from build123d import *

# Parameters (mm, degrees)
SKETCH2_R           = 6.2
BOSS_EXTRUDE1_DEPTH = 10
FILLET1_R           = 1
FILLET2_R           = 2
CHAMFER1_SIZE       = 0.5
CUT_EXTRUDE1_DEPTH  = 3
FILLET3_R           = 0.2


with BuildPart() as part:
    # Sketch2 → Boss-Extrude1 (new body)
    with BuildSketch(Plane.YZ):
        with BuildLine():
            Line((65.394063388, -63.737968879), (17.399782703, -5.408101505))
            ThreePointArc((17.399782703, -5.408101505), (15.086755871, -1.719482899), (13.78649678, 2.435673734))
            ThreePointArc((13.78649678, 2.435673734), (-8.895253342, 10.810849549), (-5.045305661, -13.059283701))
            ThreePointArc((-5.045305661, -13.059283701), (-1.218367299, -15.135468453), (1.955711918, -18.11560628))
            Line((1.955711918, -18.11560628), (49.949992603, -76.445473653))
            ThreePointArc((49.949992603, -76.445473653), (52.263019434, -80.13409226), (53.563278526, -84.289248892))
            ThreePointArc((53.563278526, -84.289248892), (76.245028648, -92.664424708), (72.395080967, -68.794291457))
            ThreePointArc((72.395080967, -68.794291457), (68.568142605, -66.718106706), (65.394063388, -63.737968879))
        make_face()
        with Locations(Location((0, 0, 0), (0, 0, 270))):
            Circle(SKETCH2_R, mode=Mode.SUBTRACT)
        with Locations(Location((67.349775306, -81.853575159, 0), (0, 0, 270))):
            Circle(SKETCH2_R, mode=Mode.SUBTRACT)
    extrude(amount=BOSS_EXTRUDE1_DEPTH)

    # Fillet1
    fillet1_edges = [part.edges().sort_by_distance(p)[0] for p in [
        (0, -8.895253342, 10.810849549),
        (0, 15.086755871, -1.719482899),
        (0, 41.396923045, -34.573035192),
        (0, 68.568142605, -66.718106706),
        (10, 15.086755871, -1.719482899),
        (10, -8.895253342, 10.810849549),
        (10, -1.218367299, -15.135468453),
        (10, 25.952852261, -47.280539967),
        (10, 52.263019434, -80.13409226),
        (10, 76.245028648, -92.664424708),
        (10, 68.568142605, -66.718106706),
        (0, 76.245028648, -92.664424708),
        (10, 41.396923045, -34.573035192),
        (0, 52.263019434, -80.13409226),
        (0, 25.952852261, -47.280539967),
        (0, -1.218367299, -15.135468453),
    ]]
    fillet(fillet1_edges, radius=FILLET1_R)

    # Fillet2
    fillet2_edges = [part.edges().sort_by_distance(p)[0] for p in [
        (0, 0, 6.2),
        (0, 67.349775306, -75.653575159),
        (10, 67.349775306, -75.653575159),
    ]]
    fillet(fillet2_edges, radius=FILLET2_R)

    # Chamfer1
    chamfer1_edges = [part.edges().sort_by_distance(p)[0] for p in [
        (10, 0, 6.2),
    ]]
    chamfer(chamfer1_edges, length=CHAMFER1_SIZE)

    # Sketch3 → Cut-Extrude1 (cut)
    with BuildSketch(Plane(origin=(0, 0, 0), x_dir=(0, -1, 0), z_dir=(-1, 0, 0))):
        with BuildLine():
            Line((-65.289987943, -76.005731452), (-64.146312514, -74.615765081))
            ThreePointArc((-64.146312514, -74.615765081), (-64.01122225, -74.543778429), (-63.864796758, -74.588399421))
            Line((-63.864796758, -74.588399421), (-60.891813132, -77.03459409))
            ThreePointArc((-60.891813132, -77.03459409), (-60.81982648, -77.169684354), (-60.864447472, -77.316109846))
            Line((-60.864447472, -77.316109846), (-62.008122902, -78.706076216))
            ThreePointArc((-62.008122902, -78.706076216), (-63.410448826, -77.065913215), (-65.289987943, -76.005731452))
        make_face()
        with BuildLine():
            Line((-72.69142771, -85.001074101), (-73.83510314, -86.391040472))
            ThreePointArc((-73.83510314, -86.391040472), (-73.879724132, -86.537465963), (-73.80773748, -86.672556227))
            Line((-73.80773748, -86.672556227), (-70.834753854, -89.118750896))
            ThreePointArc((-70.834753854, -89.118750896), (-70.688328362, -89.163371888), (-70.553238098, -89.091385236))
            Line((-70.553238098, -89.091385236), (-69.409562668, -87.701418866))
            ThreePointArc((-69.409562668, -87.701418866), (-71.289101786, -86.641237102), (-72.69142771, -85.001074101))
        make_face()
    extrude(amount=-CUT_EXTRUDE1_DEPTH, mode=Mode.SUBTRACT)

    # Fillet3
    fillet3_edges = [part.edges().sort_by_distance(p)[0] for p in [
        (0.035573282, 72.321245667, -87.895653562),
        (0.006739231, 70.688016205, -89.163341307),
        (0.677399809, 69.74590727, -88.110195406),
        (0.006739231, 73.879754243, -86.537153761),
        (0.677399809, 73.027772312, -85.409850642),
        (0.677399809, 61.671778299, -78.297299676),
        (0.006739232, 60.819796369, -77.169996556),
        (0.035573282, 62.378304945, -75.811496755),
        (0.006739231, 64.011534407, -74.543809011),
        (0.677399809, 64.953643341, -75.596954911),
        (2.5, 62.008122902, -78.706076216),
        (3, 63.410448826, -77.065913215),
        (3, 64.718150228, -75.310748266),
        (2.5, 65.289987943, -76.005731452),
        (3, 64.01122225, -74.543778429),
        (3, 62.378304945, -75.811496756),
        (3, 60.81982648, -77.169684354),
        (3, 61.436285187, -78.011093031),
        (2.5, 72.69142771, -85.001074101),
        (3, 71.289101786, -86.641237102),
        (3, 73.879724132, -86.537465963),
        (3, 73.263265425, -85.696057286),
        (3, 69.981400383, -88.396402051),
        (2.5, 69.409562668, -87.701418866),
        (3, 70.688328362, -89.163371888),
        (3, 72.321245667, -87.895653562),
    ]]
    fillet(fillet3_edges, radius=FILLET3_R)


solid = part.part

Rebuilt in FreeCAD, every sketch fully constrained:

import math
import FreeCAD as App
import Part
import Sketcher

V = App.Vector


def edges_at(feature, points):
    """Names of the edges that pass closest to the given points."""
    edges = feature.Shape.Edges
    near = lambda p: min(range(len(edges)), key=lambda i: edges[i].distToShape(Part.Vertex(*p))[0])
    return sorted({f"Edge{near(p) + 1}" for p in points})

doc = App.newDocument("Part")
body = doc.addObject("PartDesign::Body", "Body")

sketch1 = body.newObject("Sketcher::SketchObject", "Sketch")
sketch1.AttachmentSupport = (doc.getObject("YZ_Plane"), [""])
sketch1.MapMode = "FlatFace"
sketch1.addGeometry([
    Part.LineSegment(V(65.394063, -63.737969, 0), V(17.399783, -5.408102, 0)),
    Part.ArcOfCircle(Part.Circle(V(30.527243, 5.393278, 0), V(0, 0, 1), 17), math.radians(-169.980886), math.radians(-140.552179)),
    Part.ArcOfCircle(Part.Circle(V(0, 0, 0), V(0, 0, 1), 14), math.radians(10.019114), math.radians(248.876528)),
    Part.ArcOfCircle(Part.Circle(V(-11.171748, -28.916985, 0), V(0, 0, 1), 17), math.radians(39.447821), math.radians(68.876528)),
    Part.LineSegment(V(1.955712, -18.115606, 0), V(49.949993, -76.445474, 0)),
    Part.ArcOfCircle(Part.Circle(V(36.822532, -87.246853, 0), V(0, 0, 1), 17), math.radians(10.019114), math.radians(39.447821)),
    Part.ArcOfCircle(Part.Circle(V(67.349775, -81.853575, 0), V(0, 0, 1), 14), math.radians(-169.980886), math.radians(68.876528)),
    Part.ArcOfCircle(Part.Circle(V(78.521524, -52.93659, 0), V(0, 0, 1), 17), math.radians(-140.552179), math.radians(-111.123472)),
    Part.Circle(V(67.349775, -81.853575, 0), V(0, 0, 1), 6.2),
    Part.Circle(V(0, 0, 0), V(0, 0, 1), 6.2),
], False)
sketch1.addConstraint([
    Sketcher.Constraint("Tangent", 0, 2, 1, 2),
    Sketcher.Constraint("Tangent", 1, 1, 2, 1),
    Sketcher.Constraint("Tangent", 2, 2, 3, 2),
    Sketcher.Constraint("Tangent", 3, 1, 4, 1),
    Sketcher.Constraint("Tangent", 4, 2, 5, 2),
    Sketcher.Constraint("Tangent", 5, 1, 6, 1),
    Sketcher.Constraint("Tangent", 6, 2, 7, 2),
    Sketcher.Constraint("Tangent", 7, 1, 0, 1),
    Sketcher.Constraint("Coincident", 2, 3, -1, 1),
    Sketcher.Constraint("Coincident", 9, 3, -1, 1),
    Sketcher.Constraint("Coincident", 8, 3, 6, 3),
    Sketcher.Constraint("Equal", 1, 3),
    Sketcher.Constraint("Equal", 3, 5),
    Sketcher.Constraint("Equal", 2, 6),
    Sketcher.Constraint("Equal", 5, 7),
    Sketcher.Constraint("Equal", 8, 9),
    Sketcher.Constraint("Parallel", 0, 4),
    Sketcher.Constraint("Equal", 0, 4),
    Sketcher.Constraint("Radius", 1, 17.0),
    Sketcher.Constraint("Radius", 2, 14.0),
    Sketcher.Constraint("Diameter", 8, 12.4),
    Sketcher.Constraint("DistanceY", 0, 2, -1, 1, 5.408102),
    Sketcher.Constraint("DistanceY", 3, 3, 2, 2, 15.857702),
    Sketcher.Constraint("DistanceY", 7, 3, -1, 1, 52.93659),
    Sketcher.Constraint("DistanceX", -1, 1, 3, 1, 1.955712),
])
pad1 = body.newObject("PartDesign::Pad", "Pad")
pad1.Profile = sketch1
pad1.Length = 10
doc.recompute()

fillet = body.newObject("PartDesign::Fillet", "Fillet")
fillet.Base = (pad1, edges_at(pad1, [
    (0, -8.895, 10.811),
    (0, 15.087, -1.719),
    (0, 41.397, -34.573),
    (0, 68.568, -66.718),
    (10, 15.087, -1.719),
    (10, -8.895, 10.811),
    (10, -1.218, -15.135),
    (10, 25.953, -47.281),
    (10, 52.263, -80.134),
    (10, 76.245, -92.664),
    (10, 68.568, -66.718),
    (0, 76.245, -92.664),
    (10, 41.397, -34.573),
    (0, 52.263, -80.134),
    (0, 25.953, -47.281),
    (0, -1.218, -15.135),
]))
fillet.Radius = 1
doc.recompute()

fillet2 = body.newObject("PartDesign::Fillet", "Fillet001")
fillet2.Base = (fillet, edges_at(fillet, [(0, 0, 6.2), (0, 67.35, -75.654), (10, 67.35, -75.654)]))
fillet2.Radius = 2
doc.recompute()

chamfer = body.newObject("PartDesign::Chamfer", "Chamfer")
chamfer.Base = (fillet2, edges_at(fillet2, [(10, 0, 6.2)]))
chamfer.Size = 0.5

sketch2 = body.newObject("Sketcher::SketchObject", "Sketch001")
sketch2.AttachmentSupport = (doc.getObject("YZ_Plane"), [""])
sketch2.MapMode = "FlatFace"
sketch2.addGeometry([
    Part.LineSegment(V(64.146313, -74.615765, 0), V(65.289988, -76.005731, 0)),
    Part.ArcOfCircle(Part.Circle(V(67.349775, -81.853575, 0), V(0, 0, 1), 6.2), math.radians(109.403805), math.radians(149.491837)),
    Part.LineSegment(V(62.008123, -78.706076, 0), V(60.864447, -77.31611, 0)),
    Part.ArcOfCircle(Part.Circle(V(61.018888, -77.189035, 0), V(0, 0, 1), 0.2), math.radians(129.447821), math.radians(219.447821)),
    Part.LineSegment(V(60.891813, -77.034594, 0), V(63.864797, -74.588399, 0)),
    Part.ArcOfCircle(Part.Circle(V(63.991872, -74.74284, 0), V(0, 0, 1), 0.2), math.radians(39.447821), math.radians(129.447821)),
    Part.LineSegment(V(72.691428, -85.001074, 0), V(73.835103, -86.39104, 0)),
    Part.ArcOfCircle(Part.Circle(V(73.680662, -86.518116, 0), V(0, 0, 1), 0.2), math.radians(-50.552179), math.radians(39.447821)),
    Part.LineSegment(V(73.807737, -86.672556, 0), V(70.834754, -89.118751, 0)),
    Part.ArcOfCircle(Part.Circle(V(70.707679, -88.96431, 0), V(0, 0, 1), 0.2), math.radians(-140.552179), math.radians(-50.552179)),
    Part.LineSegment(V(70.553238, -89.091385, 0), V(69.409563, -87.701419, 0)),
    Part.ArcOfCircle(Part.Circle(V(67.349775, -81.853575, 0), V(0, 0, 1), 6.2), math.radians(-70.596195), math.radians(-30.508163)),
], False)
sketch2.addConstraint([
    Sketcher.Constraint("Coincident", 0, 2, 1, 1),
    Sketcher.Constraint("Coincident", 1, 2, 2, 1),
    Sketcher.Constraint("Tangent", 2, 2, 3, 2),
    Sketcher.Constraint("Tangent", 3, 1, 4, 1),
    Sketcher.Constraint("Tangent", 4, 2, 5, 2),
    Sketcher.Constraint("Tangent", 5, 1, 0, 1),
    Sketcher.Constraint("Tangent", 6, 2, 7, 2),
    Sketcher.Constraint("Tangent", 7, 1, 8, 1),
    Sketcher.Constraint("Tangent", 8, 2, 9, 2),
    Sketcher.Constraint("Tangent", 9, 1, 10, 1),
    Sketcher.Constraint("Coincident", 10, 2, 11, 1),
    Sketcher.Constraint("Coincident", 11, 2, 6, 1),
    Sketcher.Constraint("Coincident", 11, 3, 1, 3),
    Sketcher.Constraint("Equal", 3, 5),
    Sketcher.Constraint("Equal", 5, 7),
    Sketcher.Constraint("Equal", 7, 9),
    Sketcher.Constraint("Equal", 1, 11),
    Sketcher.Constraint("Parallel", 0, 2),
    Sketcher.Constraint("Perpendicular", 2, 4),
    Sketcher.Constraint("Perpendicular", 4, 6),
    Sketcher.Constraint("Perpendicular", 6, 8),
    Sketcher.Constraint("Perpendicular", 8, 10),
    Sketcher.Constraint("Equal", 0, 2),
    Sketcher.Constraint("Equal", 2, 6),
    Sketcher.Constraint("Equal", 4, 8),
    Sketcher.Constraint("Equal", 6, 10),
    Sketcher.Constraint("Radius", 1, 6.2),
    Sketcher.Constraint("Radius", 3, 0.2),
    Sketcher.Constraint("Distance", 0, 1.8),
    Sketcher.Constraint("Distance", 4, 3.85),
    Sketcher.Constraint("DistanceY", 4, 2, -1, 1, 74.588399),
    Sketcher.Constraint("DistanceX", 3, 3, 0, 2, 4.2711),
    Sketcher.Constraint("DistanceX", -1, 1, 3, 3, 61.018888),
])
pocket1 = body.newObject("PartDesign::Pocket", "Pocket")
pocket1.Profile = sketch2
pocket1.Length = 3
pocket1.Reversed = True
doc.recompute()

fillet3 = body.newObject("PartDesign::Fillet", "Fillet002")
fillet3.Base = (pocket1, edges_at(pocket1, [
    (0.036, 72.321, -87.896),
    (0.007, 70.688, -89.163),
    (0.677, 69.746, -88.11),
    (0.007, 73.88, -86.537),
    (0.677, 73.028, -85.41),
    (0.677, 61.672, -78.297),
    (0.007, 60.82, -77.17),
    (0.036, 62.378, -75.811),
    (0.007, 64.012, -74.544),
    (0.677, 64.954, -75.597),
    (2.5, 62.008, -78.706),
    (3, 63.41, -77.066),
    (3, 64.718, -75.311),
    (2.5, 65.29, -76.006),
    (3, 64.011, -74.544),
    (3, 62.378, -75.811),
    (3, 60.82, -77.17),
    (3, 61.436, -78.011),
    (2.5, 72.691, -85.001),
    (3, 71.289, -86.641),
    (3, 73.88, -86.537),
    (3, 73.263, -85.696),
    (3, 69.981, -88.396),
    (2.5, 69.41, -87.701),
    (3, 70.688, -89.163),
    (3, 72.321, -87.896),
]))
fillet3.Radius = 0.2

doc.recompute()
